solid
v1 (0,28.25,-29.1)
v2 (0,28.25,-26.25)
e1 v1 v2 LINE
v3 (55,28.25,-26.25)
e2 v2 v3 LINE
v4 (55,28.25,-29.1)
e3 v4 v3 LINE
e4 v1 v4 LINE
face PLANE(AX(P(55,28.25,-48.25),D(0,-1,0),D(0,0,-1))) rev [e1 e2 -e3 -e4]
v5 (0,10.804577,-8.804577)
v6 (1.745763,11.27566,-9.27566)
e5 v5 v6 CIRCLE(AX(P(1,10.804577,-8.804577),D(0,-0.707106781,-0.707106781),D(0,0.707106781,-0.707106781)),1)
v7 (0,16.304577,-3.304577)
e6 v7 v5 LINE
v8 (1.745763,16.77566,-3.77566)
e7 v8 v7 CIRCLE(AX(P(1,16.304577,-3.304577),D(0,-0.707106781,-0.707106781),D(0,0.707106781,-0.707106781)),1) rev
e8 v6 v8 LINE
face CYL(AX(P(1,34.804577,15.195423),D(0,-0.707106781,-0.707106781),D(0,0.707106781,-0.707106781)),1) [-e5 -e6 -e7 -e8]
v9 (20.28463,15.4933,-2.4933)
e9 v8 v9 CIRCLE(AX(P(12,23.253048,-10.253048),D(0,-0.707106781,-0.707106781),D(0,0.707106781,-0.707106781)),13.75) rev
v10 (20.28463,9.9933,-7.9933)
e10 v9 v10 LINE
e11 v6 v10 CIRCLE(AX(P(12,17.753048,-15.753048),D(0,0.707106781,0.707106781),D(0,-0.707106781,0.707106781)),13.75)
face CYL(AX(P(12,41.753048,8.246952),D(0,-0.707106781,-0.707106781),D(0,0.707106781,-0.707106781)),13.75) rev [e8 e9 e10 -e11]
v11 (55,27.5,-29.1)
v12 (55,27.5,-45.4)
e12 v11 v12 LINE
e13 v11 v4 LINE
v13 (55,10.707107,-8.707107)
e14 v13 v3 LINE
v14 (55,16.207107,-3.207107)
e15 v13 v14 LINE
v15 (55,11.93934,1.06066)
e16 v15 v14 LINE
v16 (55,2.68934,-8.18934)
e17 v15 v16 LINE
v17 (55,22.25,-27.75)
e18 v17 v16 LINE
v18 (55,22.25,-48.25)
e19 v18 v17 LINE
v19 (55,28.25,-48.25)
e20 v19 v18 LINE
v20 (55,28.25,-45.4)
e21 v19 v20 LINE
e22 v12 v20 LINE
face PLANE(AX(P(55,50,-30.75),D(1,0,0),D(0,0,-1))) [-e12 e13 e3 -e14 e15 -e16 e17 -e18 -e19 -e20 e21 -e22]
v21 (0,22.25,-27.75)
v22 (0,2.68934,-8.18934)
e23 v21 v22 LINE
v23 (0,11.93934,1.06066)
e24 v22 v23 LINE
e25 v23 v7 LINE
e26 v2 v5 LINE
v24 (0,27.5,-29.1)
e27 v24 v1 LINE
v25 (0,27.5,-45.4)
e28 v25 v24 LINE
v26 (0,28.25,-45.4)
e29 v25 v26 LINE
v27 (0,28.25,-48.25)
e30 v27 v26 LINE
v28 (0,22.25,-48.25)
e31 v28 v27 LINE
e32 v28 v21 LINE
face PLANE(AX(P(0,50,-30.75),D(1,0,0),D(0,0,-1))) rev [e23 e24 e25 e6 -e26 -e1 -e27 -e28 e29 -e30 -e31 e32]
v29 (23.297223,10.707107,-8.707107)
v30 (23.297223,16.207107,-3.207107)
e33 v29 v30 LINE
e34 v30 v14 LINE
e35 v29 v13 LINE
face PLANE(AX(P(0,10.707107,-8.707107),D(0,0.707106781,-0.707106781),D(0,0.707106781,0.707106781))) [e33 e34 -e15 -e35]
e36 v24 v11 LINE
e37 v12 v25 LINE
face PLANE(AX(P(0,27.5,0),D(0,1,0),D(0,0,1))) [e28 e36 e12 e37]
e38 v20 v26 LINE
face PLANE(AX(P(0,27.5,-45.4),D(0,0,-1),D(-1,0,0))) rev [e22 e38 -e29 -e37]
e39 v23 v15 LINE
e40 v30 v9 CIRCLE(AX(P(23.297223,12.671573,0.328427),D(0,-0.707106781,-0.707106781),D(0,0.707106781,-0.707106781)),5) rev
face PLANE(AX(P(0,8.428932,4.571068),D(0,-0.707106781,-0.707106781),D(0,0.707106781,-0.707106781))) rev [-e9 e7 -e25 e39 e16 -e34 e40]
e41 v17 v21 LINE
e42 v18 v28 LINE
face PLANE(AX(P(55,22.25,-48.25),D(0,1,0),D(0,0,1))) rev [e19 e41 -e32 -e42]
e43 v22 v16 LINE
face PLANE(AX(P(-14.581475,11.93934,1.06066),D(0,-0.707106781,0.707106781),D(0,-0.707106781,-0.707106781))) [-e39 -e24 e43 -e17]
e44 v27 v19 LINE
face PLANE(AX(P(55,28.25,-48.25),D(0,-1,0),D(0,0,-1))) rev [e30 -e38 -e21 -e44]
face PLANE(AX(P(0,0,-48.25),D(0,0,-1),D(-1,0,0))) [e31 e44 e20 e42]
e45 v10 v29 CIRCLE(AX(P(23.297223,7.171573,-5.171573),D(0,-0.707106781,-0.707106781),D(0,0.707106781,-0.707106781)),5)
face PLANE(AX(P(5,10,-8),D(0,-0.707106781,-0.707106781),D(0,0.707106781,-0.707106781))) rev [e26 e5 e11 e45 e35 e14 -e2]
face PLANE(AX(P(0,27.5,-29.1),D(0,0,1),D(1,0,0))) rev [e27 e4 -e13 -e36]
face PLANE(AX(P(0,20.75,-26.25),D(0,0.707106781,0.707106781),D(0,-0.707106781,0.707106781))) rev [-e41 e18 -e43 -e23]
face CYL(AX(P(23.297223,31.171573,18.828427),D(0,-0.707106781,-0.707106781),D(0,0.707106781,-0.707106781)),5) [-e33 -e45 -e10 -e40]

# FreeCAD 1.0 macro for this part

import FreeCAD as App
import Part
import Sketcher
Q = App.Units.Quantity


def edges_at(feature, points):
    """Names of the edges that pass closest to the given points."""
    edges = feature.Shape.Edges
    near = lambda p: min(range(len(edges)), key=lambda i: edges[i].distToShape(Part.Vertex(*p))[0])
    return sorted({f"Edge{near(p) + 1}" for p in points})


def add_polygon(sketch, points):
    """Adds a closed chain of lines whose ends are joined by coincident constraints."""
    first, n = sketch.GeometryCount, len(points)
    for a, b in zip(points, points[1:] + points[:1]):
        sketch.addGeometry(Part.LineSegment(App.Vector(*a, 0), App.Vector(*b, 0)), False)
    for i in range(n):
        sketch.addConstraint(Sketcher.Constraint("Coincident", first + i, 2, first + (i + 1) % n, 1))

doc = App.newDocument("Part")
params = doc.addObject("Spreadsheet::Sheet", "Params")
for row, (alias, value) in enumerate([
    ("sketch1_width", "55 mm"),
    ("sketch1_height", "30.75 mm"),
    ("pad1_length", "50 mm"),
    ("sketch2_length", "50 mm"),
    ("pocket1_length", "50 mm"),
    ("sketch3_length", "10 mm"),
    ("sketch4_length", "1 mm"),
    ("sketch5_diameter", "27.5 mm"),
    ("sketch6_width", "50 mm"),
    ("sketch6_height", "61 mm"),
    ("sketch7_diameter", "12 mm"),
    ("sketch8_width", "4.5 mm"),
    ("sketch9_width", "55 mm"),
    ("sketch9_height", "4.5 mm"),
    ("fillet_radius", "1 mm"),
    ("fillet2_radius", "5 mm"),
    ("sketch10_width", "13 mm"),
    ("sketch10_width2", "20.75 mm"),
    ("sketch11_width", "55 mm"),
    ("sketch11_height", "6 mm"),
    ("pad3_length", "22 mm"),
    ("sketch12_height", "7.5 mm"),
    ("pad4_length", "55 mm"),
    ("sketch13_width", "55 mm"),
    ("sketch13_height", "16.3 mm"),
    ("pocket9_length", "0.75 mm"),
    ("sketch14_length", "1.5 mm"),
    ("pad5_length", "55 mm"),
], start=1):
    params.set(f"A{row}", alias)
    params.set(f"B{row}", "=" + value)
    params.setAlias(f"B{row}", alias)

body = doc.addObject("PartDesign::Body", "Body")

# Sketch on XZ plane
sketch1 = body.newObject("Sketcher::SketchObject", "Sketch")
sketch1.AttachmentSupport = (doc.getObject("XZ_Plane"), [""])
sketch1.MapMode = "FlatFace"
add_polygon(sketch1, [(0, -31), (0, 0), (55, 0), (55, -31)])  # lines 0-3
sketch1.addConstraint(Sketcher.Constraint("Vertical", 0))
sketch1.addConstraint(Sketcher.Constraint("Horizontal", 1))
sketch1.addConstraint(Sketcher.Constraint("Vertical", 2))
sketch1.addConstraint(Sketcher.Constraint("Horizontal", 3))
sketch1.addConstraint(Sketcher.Constraint("Coincident", 0, 2, -1, 1))
sketch1.addConstraint(Sketcher.Constraint("DistanceX", 1, 1, 1, 2, 55.0))
sketch1.addConstraint(Sketcher.Constraint("DistanceY", 0, 1, 0, 2, 30.75))
sketch1.setExpression("Constraints[9]", "Params.sketch1_width")
sketch1.setExpression("Constraints[10]", "Params.sketch1_height")
pad1 = body.newObject("PartDesign::Pad", "Pad")
pad1.Profile = sketch1
pad1.setExpression("Length", "Params.pad1_length")
pad1.Reversed = True

# Sketch on YZ plane
sketch2 = body.newObject("Sketcher::SketchObject", "Sketch001")
sketch2.AttachmentSupport = (doc.getObject("YZ_Plane"), [""])
sketch2.MapMode = "FlatFace"
sketch2.AttachmentOffset = App.Placement(App.Vector(0, 0, 55), App.Rotation())
add_polygon(sketch2, [(81, -8), (45, 27), (10, -8), (45, -43)])  # lines 0-3
sketch2.addConstraint(Sketcher.Constraint("Perpendicular", 0, 1))
sketch2.addConstraint(Sketcher.Constraint("Perpendicular", 1, 2))
sketch2.addConstraint(Sketcher.Constraint("Perpendicular", 2, 3))
sketch2.addConstraint(Sketcher.Constraint("Horizontal", 1, 2, 3, 2))
sketch2.addConstraint(Sketcher.Constraint("Vertical", 0, 2, 2, 2))
sketch2.addConstraint(Sketcher.Constraint("Distance", 0, 50.0))
sketch2.addConstraint(Sketcher.Constraint("DistanceX", -1, 1, 1, 2, 10.0))
sketch2.addConstraint(Sketcher.Constraint("DistanceY", 1, 2, -1, 1, 8.0))
sketch2.setExpression("Constraints[9]", "Params.sketch2_length")
pocket1 = body.newObject("PartDesign::Pocket", "Pocket")
pocket1.Profile = sketch2
pocket1.setExpression("Length", "Params.pocket1_length")

# Sketch on YZ plane
sketch3 = body.newObject("Sketcher::SketchObject", "Sketch002")
sketch3.AttachmentSupport = (doc.getObject("YZ_Plane"), [""])
sketch3.MapMode = "FlatFace"
sketch3.AttachmentOffset = App.Placement(App.Vector(0, 0, 55), App.Rotation())
add_polygon(sketch3, [(23, 5), (16, 12), (8, 5), (16, -2)])  # lines 0-3
sketch3.addConstraint(Sketcher.Constraint("Perpendicular", 0, 1))
sketch3.addConstraint(Sketcher.Constraint("Perpendicular", 1, 2))
sketch3.addConstraint(Sketcher.Constraint("Perpendicular", 2, 3))
sketch3.addConstraint(Sketcher.Constraint("Horizontal", 1, 2, 3, 2))
sketch3.addConstraint(Sketcher.Constraint("Vertical", 0, 2, 2, 2))
sketch3.addConstraint(Sketcher.Constraint("Distance", 0, 10.0))
sketch3.addConstraint(Sketcher.Constraint("DistanceX", -1, 1, 0, 2, 15.5))
sketch3.addConstraint(Sketcher.Constraint("DistanceY", 2, 2, -1, 1, 2.5))
sketch3.setExpression("Constraints[9]", "Params.sketch3_length")
pocket2 = body.newObject("PartDesign::Pocket", "Pocket001")
pocket2.Profile = sketch3
pocket2.Type = "ThroughAll"

# Sketch on YZ plane
sketch4 = body.newObject("Sketcher::SketchObject", "Sketch003")
sketch4.AttachmentSupport = (doc.getObject("YZ_Plane"), [""])
sketch4.MapMode = "FlatFace"
sketch4.AttachmentOffset = App.Placement(App.Vector(0, 0, 55), App.Rotation())
add_polygon(sketch4, [(15.5, -2.5), (10, -8), (10.7, -8.7), (16.2, -3.2)])  # lines 0-3
sketch4.addConstraint(Sketcher.Constraint("Perpendicular", 0, 1))
sketch4.addConstraint(Sketcher.Constraint("Perpendicular", 1, 2))
sketch4.addConstraint(Sketcher.Constraint("Perpendicular", 2, 3))
sketch4.addConstraint(Sketcher.Constraint("Angle", 0, Q("-135 deg")))
sketch4.addConstraint(Sketcher.Constraint("Distance", 1, 1.0))
sketch4.addConstraint(Sketcher.Constraint("DistanceX", -1, 1, 0, 2, 10.0))
sketch4.addConstraint(Sketcher.Constraint("DistanceY", 0, 2, -1, 1, 8.0))
sketch4.addConstraint(Sketcher.Constraint("DistanceX", -1, 1, 3, 2, 15.5))
sketch4.setExpression("Constraints[8]", "Params.sketch4_length")
pad2 = body.newObject("PartDesign::Pad", "Pad001")
pad2.Profile = sketch4
pad2.Type = "UpToFirst"
pad2.Reversed = True

# Sketch on an angled plane
sketch5 = body.newObject("Sketcher::SketchObject", "Sketch004")
sketch5.Placement = App.Placement(App.Vector(0, 1, 1), App.Rotation(App.Vector(1, 0, 0), App.Vector(0, 0.707106781, -0.707106781), App.Vector(0, 0.707106781, 0.707106781), "ZXY"))
sketch5.addGeometry(Part.Circle(App.Vector(12, 24, 0), App.Vector(0, 0, 1), 14), False)
sketch5.addConstraint(Sketcher.Constraint("Diameter", 0, 27.5))
sketch5.addConstraint(Sketcher.Constraint("DistanceX", -1, 1, 0, 3, 12.0))
sketch5.addConstraint(Sketcher.Constraint("DistanceY", -1, 1, 0, 3, 23.692388))
sketch5.setExpression("Constraints[0]", "Params.sketch5_diameter")
pocket3 = body.newObject("PartDesign::Pocket", "Pocket002")
pocket3.Profile = sketch5
pocket3.Type = "ThroughAll"
pocket3.Reversed = True

# Sketch on YZ plane
sketch6 = body.newObject("Sketcher::SketchObject", "Sketch005")
sketch6.AttachmentSupport = (doc.getObject("YZ_Plane"), [""])
sketch6.MapMode = "FlatFace"
sketch6.AttachmentOffset = App.Placement(App.Vector(0, 0, 55), App.Rotation())
add_polygon(sketch6, [(13, 0), (19, -6), (13, -11), (63, -61), (63, 0)])  # lines 0-4
sketch6.addConstraint(Sketcher.Constraint("Vertical", 3))
sketch6.addConstraint(Sketcher.Constraint("Horizontal", 4))
sketch6.addConstraint(Sketcher.Constraint("PointOnObject", 3, 2, -1))
sketch6.addConstraint(Sketcher.Constraint("Perpendicular", 0, 1))
sketch6.addConstraint(Sketcher.Constraint("Perpendicular", 1, 2))
sketch6.addConstraint(Sketcher.Constraint("DistanceX", 4, 2, 4, 1, 50.0))
sketch6.addConstraint(Sketcher.Constraint("DistanceY", 3, 1, 3, 2, 61.0))
sketch6.addConstraint(Sketcher.Constraint("Angle", 0, Q("-45 deg")))
sketch6.addConstraint(Sketcher.Constraint("DistanceX", -1, 1, 2, 2, 63.0))
sketch6.addConstraint(Sketcher.Constraint("Distance", 0, 7.787139))
sketch6.setExpression("Constraints[10]", "Params.sketch6_width")
sketch6.setExpression("Constraints[11]", "Params.sketch6_height")
pocket4 = body.newObject("PartDesign::Pocket", "Pocket003")
pocket4.Profile = sketch6
pocket4.Type = "ThroughAll"

# Sketch on XZ plane
sketch7 = body.newObject("Sketcher::SketchObject", "Sketch006")
sketch7.AttachmentSupport = (doc.getObject("XZ_Plane"), [""])
sketch7.MapMode = "FlatFace"
sketch7.addGeometry(Part.Circle(App.Vector(26, -32, 0), App.Vector(0, 0, 1), 6), False)
sketch7.addConstraint(Sketcher.Constraint("Diameter", 0, 12.0))
sketch7.addConstraint(Sketcher.Constraint("DistanceX", -1, 1, 0, 3, 25.75))
sketch7.addConstraint(Sketcher.Constraint("DistanceY", 0, 3, -1, 1, 32.25))
sketch7.setExpression("Constraints[0]", "Params.sketch7_diameter")
pocket5 = body.newObject("PartDesign::Pocket", "Pocket004")
pocket5.Profile = sketch7
pocket5.Type = "ThroughAll"

# Sketch on YZ plane
sketch8 = body.newObject("Sketcher::SketchObject", "Sketch007")
sketch8.AttachmentSupport = (doc.getObject("YZ_Plane"), [""])
sketch8.MapMode = "FlatFace"
sketch8.AttachmentOffset = App.Placement(App.Vector(0, 0, 55), App.Rotation())
add_polygon(sketch8, [(28.2, -26.2), (28.2, -30.8), (32.8, -30.8)])  # lines 0-2
sketch8.addConstraint(Sketcher.Constraint("Vertical", 0))
sketch8.addConstraint(Sketcher.Constraint("Horizontal", 1))
sketch8.addConstraint(Sketcher.Constraint("Equal", 1, 0))
sketch8.addConstraint(Sketcher.Constraint("DistanceX", 1, 1, 1, 2, 4.5))
sketch8.addConstraint(Sketcher.Constraint("DistanceX", -1, 1, 0, 2, 28.25))
sketch8.addConstraint(Sketcher.Constraint("DistanceY", 0, 2, -1, 1, 30.75))
sketch8.setExpression("Constraints[6]", "Params.sketch8_width")
pocket6 = body.newObject("PartDesign::Pocket", "Pocket005")
pocket6.Profile = sketch8
pocket6.Type = "ThroughAll"

# Sketch on XZ plane
sketch9 = body.newObject("Sketcher::SketchObject", "Sketch008")
sketch9.AttachmentSupport = (doc.getObject("XZ_Plane"), [""])
sketch9.MapMode = "FlatFace"
add_polygon(sketch9, [(0, -30.8), (0, -26.2), (55, -26.2), (55, -30.8)])  # lines 0-3
sketch9.addConstraint(Sketcher.Constraint("Vertical", 0))
sketch9.addConstraint(Sketcher.Constraint("Horizontal", 1))
sketch9.addConstraint(Sketcher.Constraint("Vertical", 2))
sketch9.addConstraint(Sketcher.Constraint("Horizontal", 3))
sketch9.addConstraint(Sketcher.Constraint("PointOnObject", 0, 2, -2))
sketch9.addConstraint(Sketcher.Constraint("DistanceX", 1, 1, 1, 2, 55.0))
sketch9.addConstraint(Sketcher.Constraint("DistanceY", 0, 1, 0, 2, 4.5))
sketch9.addConstraint(Sketcher.Constraint("DistanceY", 0, 2, -1, 1, 26.25))
sketch9.setExpression("Constraints[9]", "Params.sketch9_width")
sketch9.setExpression("Constraints[10]", "Params.sketch9_height")
pocket7 = body.newObject("PartDesign::Pocket", "Pocket006")
pocket7.Profile = sketch9
pocket7.Type = "ThroughAll"
doc.recompute()

fillet = body.newObject("PartDesign::Fillet", "Fillet")
fillet.Base = (pocket7, edges_at(pocket7, [(0, 15.756, -8.256)]))
fillet.setExpression("Radius", "Params.fillet_radius")
doc.recompute()

fillet2 = body.newObject("PartDesign::Fillet", "Fillet001")
fillet2.Base = (fillet, edges_at(fillet, [(21.475, 13.457, -5.957)]))
fillet2.setExpression("Radius", "Params.fillet2_radius")

# Sketch on YZ plane
sketch10 = body.newObject("Sketcher::SketchObject", "Sketch009")
sketch10.AttachmentSupport = (doc.getObject("YZ_Plane"), [""])
sketch10.MapMode = "FlatFace"
sketch10.AttachmentOffset = App.Placement(App.Vector(0, 0, 55), App.Rotation())
add_polygon(sketch10, [(21, -26), (4, -9), (13, 0), (0, 0), (0, -26)])  # lines 0-4
sketch10.addConstraint(Sketcher.Constraint("Horizontal", 2))
sketch10.addConstraint(Sketcher.Constraint("Vertical", 3))
sketch10.addConstraint(Sketcher.Constraint("Horizontal", 4))
sketch10.addConstraint(Sketcher.Constraint("Coincident", 2, 2, -1, 1))
sketch10.addConstraint(Sketcher.Constraint("Perpendicular", 0, 1))
sketch10.addConstraint(Sketcher.Constraint("DistanceX", 2, 2, 2, 1, 13.0))
sketch10.addConstraint(Sketcher.Constraint("Angle", 0, Q("135 deg")))
sketch10.addConstraint(Sketcher.Constraint("DistanceY", 3, 2, 0, 2, 17.0))
sketch10.addConstraint(Sketcher.Constraint("DistanceX", 4, 1, 4, 2, 20.75))
sketch10.setExpression("Constraints[10]", "Params.sketch10_width")
sketch10.setExpression("Constraints[13]", "Params.sketch10_width2")
pocket8 = body.newObject("PartDesign::Pocket", "Pocket007")
pocket8.Profile = sketch10
pocket8.Type = "ThroughAll"

# Sketch on XY plane
sketch11 = body.newObject("Sketcher::SketchObject", "Sketch010")
sketch11.AttachmentSupport = (doc.getObject("XY_Plane"), [""])
sketch11.MapMode = "FlatFace"
sketch11.AttachmentOffset = App.Placement(App.Vector(0, 0, -26.25), App.Rotation())
add_polygon(sketch11, [(55, 28), (55, 22), (0, 22), (0, 28)])  # lines 0-3
sketch11.addConstraint(Sketcher.Constraint("Vertical", 0))
sketch11.addConstraint(Sketcher.Constraint("Horizontal", 1))
sketch11.addConstraint(Sketcher.Constraint("Vertical", 2))
sketch11.addConstraint(Sketcher.Constraint("Horizontal", 3))
sketch11.addConstraint(Sketcher.Constraint("PointOnObject", 1, 2, -2))
sketch11.addConstraint(Sketcher.Constraint("DistanceX", 1, 2, 1, 1, 55.0))
sketch11.addConstraint(Sketcher.Constraint("DistanceY", 0, 2, 0, 1, 6.0))
sketch11.addConstraint(Sketcher.Constraint("DistanceY", -1, 1, 0, 2, 22.25))
sketch11.setExpression("Constraints[9]", "Params.sketch11_width")
sketch11.setExpression("Constraints[10]", "Params.sketch11_height")
pad3 = body.newObject("PartDesign::Pad", "Pad002")
pad3.Profile = sketch11
pad3.setExpression("Length", "Params.pad3_length")
pad3.Reversed = True

# Sketch on YZ plane
sketch12 = body.newObject("Sketcher::SketchObject", "Sketch011")
sketch12.AttachmentSupport = (doc.getObject("YZ_Plane"), [""])
sketch12.MapMode = "FlatFace"
sketch12.AttachmentOffset = App.Placement(App.Vector(0, 0, 55), App.Rotation())
add_polygon(sketch12, [(12, -18), (28, -34), (28, -26), (16, -14)])  # lines 0-3
sketch12.addConstraint(Sketcher.Constraint("Vertical", 1))
sketch12.addConstraint(Sketcher.Constraint("Parallel", 0, 2))
sketch12.addConstraint(Sketcher.Constraint("Perpendicular", 2, 3))
sketch12.addConstraint(Sketcher.Constraint("Angle", 0, Q("-45 deg")))
sketch12.addConstraint(Sketcher.Constraint("DistanceY", 1, 1, 1, 2, 7.5))
sketch12.addConstraint(Sketcher.Constraint("DistanceX", -1, 1, 2, 2, 16.0))
sketch12.addConstraint(Sketcher.Constraint("DistanceY", 2, 2, -1, 1, 14.0))
sketch12.addConstraint(Sketcher.Constraint("DistanceX", 3, 2, 1, 2, 16.0))
sketch12.setExpression("Constraints[8]", "Params.sketch12_height")
pad4 = body.newObject("PartDesign::Pad", "Pad003")
pad4.Profile = sketch12
pad4.setExpression("Length", "Params.pad4_length")
pad4.Reversed = True

# Sketch on XZ plane
sketch13 = body.newObject("Sketcher::SketchObject", "Sketch012")
sketch13.AttachmentSupport = (doc.getObject("XZ_Plane"), [""])
sketch13.MapMode = "FlatFace"
sketch13.AttachmentOffset = App.Placement(App.Vector(0, 0, -28.25), App.Rotation())
add_polygon(sketch13, [(0, -45), (0, -29), (55, -29), (55, -45)])  # lines 0-3
sketch13.addConstraint(Sketcher.Constraint("Vertical", 0))
sketch13.addConstraint(Sketcher.Constraint("Horizontal", 1))
sketch13.addConstraint(Sketcher.Constraint("Vertical", 2))
sketch13.addConstraint(Sketcher.Constraint("Horizontal", 3))
sketch13.addConstraint(Sketcher.Constraint("PointOnObject", 0, 2, -2))
sketch13.addConstraint(Sketcher.Constraint("DistanceX", 1, 1, 1, 2, 55.0))
sketch13.addConstraint(Sketcher.Constraint("DistanceY", 0, 1, 0, 2, 16.3))
sketch13.addConstraint(Sketcher.Constraint("DistanceY", 0, 2, -1, 1, 29.1))
sketch13.setExpression("Constraints[9]", "Params.sketch13_width")
sketch13.setExpression("Constraints[10]", "Params.sketch13_height")
pocket9 = body.newObject("PartDesign::Pocket", "Pocket008")
pocket9.Profile = sketch13
pocket9.setExpression("Length", "Params.pocket9_length")
pocket9.Reversed = True

# Sketch on YZ plane
sketch14 = body.newObject("Sketcher::SketchObject", "Sketch013")
sketch14.AttachmentSupport = (doc.getObject("YZ_Plane"), [""])
sketch14.MapMode = "FlatFace"
sketch14.AttachmentOffset = App.Placement(App.Vector(0, 0, 55), App.Rotation())
add_polygon(sketch14, [(13, 0), (11.9, 1.1), (2.7, -8.2), (3.8, -9.2)])  # lines 0-3
sketch14.addConstraint(Sketcher.Constraint("PointOnObject", 3, 2, -1))
sketch14.addConstraint(Sketcher.Constraint("Perpendicular", 0, 1))
sketch14.addConstraint(Sketcher.Constraint("Perpendicular", 1, 2))
sketch14.addConstraint(Sketcher.Constraint("Perpendicular", 2, 3))
sketch14.addConstraint(Sketcher.Constraint("Angle", 0, Q("135 deg")))
sketch14.addConstraint(Sketcher.Constraint("DistanceX", -1, 1, 3, 2, 13.0))
sketch14.addConstraint(Sketcher.Constraint("Distance", 0, 1.5))
sketch14.addConstraint(Sketcher.Constraint("DistanceX", -1, 1, 2, 2, 3.75))
sketch14.setExpression("Constraints[10]", "Params.sketch14_length")
pad5 = body.newObject("PartDesign::Pad", "Pad004")
pad5.Profile = sketch14
pad5.setExpression("Length", "Params.pad5_length")
pad5.Reversed = True

doc.recompute()
